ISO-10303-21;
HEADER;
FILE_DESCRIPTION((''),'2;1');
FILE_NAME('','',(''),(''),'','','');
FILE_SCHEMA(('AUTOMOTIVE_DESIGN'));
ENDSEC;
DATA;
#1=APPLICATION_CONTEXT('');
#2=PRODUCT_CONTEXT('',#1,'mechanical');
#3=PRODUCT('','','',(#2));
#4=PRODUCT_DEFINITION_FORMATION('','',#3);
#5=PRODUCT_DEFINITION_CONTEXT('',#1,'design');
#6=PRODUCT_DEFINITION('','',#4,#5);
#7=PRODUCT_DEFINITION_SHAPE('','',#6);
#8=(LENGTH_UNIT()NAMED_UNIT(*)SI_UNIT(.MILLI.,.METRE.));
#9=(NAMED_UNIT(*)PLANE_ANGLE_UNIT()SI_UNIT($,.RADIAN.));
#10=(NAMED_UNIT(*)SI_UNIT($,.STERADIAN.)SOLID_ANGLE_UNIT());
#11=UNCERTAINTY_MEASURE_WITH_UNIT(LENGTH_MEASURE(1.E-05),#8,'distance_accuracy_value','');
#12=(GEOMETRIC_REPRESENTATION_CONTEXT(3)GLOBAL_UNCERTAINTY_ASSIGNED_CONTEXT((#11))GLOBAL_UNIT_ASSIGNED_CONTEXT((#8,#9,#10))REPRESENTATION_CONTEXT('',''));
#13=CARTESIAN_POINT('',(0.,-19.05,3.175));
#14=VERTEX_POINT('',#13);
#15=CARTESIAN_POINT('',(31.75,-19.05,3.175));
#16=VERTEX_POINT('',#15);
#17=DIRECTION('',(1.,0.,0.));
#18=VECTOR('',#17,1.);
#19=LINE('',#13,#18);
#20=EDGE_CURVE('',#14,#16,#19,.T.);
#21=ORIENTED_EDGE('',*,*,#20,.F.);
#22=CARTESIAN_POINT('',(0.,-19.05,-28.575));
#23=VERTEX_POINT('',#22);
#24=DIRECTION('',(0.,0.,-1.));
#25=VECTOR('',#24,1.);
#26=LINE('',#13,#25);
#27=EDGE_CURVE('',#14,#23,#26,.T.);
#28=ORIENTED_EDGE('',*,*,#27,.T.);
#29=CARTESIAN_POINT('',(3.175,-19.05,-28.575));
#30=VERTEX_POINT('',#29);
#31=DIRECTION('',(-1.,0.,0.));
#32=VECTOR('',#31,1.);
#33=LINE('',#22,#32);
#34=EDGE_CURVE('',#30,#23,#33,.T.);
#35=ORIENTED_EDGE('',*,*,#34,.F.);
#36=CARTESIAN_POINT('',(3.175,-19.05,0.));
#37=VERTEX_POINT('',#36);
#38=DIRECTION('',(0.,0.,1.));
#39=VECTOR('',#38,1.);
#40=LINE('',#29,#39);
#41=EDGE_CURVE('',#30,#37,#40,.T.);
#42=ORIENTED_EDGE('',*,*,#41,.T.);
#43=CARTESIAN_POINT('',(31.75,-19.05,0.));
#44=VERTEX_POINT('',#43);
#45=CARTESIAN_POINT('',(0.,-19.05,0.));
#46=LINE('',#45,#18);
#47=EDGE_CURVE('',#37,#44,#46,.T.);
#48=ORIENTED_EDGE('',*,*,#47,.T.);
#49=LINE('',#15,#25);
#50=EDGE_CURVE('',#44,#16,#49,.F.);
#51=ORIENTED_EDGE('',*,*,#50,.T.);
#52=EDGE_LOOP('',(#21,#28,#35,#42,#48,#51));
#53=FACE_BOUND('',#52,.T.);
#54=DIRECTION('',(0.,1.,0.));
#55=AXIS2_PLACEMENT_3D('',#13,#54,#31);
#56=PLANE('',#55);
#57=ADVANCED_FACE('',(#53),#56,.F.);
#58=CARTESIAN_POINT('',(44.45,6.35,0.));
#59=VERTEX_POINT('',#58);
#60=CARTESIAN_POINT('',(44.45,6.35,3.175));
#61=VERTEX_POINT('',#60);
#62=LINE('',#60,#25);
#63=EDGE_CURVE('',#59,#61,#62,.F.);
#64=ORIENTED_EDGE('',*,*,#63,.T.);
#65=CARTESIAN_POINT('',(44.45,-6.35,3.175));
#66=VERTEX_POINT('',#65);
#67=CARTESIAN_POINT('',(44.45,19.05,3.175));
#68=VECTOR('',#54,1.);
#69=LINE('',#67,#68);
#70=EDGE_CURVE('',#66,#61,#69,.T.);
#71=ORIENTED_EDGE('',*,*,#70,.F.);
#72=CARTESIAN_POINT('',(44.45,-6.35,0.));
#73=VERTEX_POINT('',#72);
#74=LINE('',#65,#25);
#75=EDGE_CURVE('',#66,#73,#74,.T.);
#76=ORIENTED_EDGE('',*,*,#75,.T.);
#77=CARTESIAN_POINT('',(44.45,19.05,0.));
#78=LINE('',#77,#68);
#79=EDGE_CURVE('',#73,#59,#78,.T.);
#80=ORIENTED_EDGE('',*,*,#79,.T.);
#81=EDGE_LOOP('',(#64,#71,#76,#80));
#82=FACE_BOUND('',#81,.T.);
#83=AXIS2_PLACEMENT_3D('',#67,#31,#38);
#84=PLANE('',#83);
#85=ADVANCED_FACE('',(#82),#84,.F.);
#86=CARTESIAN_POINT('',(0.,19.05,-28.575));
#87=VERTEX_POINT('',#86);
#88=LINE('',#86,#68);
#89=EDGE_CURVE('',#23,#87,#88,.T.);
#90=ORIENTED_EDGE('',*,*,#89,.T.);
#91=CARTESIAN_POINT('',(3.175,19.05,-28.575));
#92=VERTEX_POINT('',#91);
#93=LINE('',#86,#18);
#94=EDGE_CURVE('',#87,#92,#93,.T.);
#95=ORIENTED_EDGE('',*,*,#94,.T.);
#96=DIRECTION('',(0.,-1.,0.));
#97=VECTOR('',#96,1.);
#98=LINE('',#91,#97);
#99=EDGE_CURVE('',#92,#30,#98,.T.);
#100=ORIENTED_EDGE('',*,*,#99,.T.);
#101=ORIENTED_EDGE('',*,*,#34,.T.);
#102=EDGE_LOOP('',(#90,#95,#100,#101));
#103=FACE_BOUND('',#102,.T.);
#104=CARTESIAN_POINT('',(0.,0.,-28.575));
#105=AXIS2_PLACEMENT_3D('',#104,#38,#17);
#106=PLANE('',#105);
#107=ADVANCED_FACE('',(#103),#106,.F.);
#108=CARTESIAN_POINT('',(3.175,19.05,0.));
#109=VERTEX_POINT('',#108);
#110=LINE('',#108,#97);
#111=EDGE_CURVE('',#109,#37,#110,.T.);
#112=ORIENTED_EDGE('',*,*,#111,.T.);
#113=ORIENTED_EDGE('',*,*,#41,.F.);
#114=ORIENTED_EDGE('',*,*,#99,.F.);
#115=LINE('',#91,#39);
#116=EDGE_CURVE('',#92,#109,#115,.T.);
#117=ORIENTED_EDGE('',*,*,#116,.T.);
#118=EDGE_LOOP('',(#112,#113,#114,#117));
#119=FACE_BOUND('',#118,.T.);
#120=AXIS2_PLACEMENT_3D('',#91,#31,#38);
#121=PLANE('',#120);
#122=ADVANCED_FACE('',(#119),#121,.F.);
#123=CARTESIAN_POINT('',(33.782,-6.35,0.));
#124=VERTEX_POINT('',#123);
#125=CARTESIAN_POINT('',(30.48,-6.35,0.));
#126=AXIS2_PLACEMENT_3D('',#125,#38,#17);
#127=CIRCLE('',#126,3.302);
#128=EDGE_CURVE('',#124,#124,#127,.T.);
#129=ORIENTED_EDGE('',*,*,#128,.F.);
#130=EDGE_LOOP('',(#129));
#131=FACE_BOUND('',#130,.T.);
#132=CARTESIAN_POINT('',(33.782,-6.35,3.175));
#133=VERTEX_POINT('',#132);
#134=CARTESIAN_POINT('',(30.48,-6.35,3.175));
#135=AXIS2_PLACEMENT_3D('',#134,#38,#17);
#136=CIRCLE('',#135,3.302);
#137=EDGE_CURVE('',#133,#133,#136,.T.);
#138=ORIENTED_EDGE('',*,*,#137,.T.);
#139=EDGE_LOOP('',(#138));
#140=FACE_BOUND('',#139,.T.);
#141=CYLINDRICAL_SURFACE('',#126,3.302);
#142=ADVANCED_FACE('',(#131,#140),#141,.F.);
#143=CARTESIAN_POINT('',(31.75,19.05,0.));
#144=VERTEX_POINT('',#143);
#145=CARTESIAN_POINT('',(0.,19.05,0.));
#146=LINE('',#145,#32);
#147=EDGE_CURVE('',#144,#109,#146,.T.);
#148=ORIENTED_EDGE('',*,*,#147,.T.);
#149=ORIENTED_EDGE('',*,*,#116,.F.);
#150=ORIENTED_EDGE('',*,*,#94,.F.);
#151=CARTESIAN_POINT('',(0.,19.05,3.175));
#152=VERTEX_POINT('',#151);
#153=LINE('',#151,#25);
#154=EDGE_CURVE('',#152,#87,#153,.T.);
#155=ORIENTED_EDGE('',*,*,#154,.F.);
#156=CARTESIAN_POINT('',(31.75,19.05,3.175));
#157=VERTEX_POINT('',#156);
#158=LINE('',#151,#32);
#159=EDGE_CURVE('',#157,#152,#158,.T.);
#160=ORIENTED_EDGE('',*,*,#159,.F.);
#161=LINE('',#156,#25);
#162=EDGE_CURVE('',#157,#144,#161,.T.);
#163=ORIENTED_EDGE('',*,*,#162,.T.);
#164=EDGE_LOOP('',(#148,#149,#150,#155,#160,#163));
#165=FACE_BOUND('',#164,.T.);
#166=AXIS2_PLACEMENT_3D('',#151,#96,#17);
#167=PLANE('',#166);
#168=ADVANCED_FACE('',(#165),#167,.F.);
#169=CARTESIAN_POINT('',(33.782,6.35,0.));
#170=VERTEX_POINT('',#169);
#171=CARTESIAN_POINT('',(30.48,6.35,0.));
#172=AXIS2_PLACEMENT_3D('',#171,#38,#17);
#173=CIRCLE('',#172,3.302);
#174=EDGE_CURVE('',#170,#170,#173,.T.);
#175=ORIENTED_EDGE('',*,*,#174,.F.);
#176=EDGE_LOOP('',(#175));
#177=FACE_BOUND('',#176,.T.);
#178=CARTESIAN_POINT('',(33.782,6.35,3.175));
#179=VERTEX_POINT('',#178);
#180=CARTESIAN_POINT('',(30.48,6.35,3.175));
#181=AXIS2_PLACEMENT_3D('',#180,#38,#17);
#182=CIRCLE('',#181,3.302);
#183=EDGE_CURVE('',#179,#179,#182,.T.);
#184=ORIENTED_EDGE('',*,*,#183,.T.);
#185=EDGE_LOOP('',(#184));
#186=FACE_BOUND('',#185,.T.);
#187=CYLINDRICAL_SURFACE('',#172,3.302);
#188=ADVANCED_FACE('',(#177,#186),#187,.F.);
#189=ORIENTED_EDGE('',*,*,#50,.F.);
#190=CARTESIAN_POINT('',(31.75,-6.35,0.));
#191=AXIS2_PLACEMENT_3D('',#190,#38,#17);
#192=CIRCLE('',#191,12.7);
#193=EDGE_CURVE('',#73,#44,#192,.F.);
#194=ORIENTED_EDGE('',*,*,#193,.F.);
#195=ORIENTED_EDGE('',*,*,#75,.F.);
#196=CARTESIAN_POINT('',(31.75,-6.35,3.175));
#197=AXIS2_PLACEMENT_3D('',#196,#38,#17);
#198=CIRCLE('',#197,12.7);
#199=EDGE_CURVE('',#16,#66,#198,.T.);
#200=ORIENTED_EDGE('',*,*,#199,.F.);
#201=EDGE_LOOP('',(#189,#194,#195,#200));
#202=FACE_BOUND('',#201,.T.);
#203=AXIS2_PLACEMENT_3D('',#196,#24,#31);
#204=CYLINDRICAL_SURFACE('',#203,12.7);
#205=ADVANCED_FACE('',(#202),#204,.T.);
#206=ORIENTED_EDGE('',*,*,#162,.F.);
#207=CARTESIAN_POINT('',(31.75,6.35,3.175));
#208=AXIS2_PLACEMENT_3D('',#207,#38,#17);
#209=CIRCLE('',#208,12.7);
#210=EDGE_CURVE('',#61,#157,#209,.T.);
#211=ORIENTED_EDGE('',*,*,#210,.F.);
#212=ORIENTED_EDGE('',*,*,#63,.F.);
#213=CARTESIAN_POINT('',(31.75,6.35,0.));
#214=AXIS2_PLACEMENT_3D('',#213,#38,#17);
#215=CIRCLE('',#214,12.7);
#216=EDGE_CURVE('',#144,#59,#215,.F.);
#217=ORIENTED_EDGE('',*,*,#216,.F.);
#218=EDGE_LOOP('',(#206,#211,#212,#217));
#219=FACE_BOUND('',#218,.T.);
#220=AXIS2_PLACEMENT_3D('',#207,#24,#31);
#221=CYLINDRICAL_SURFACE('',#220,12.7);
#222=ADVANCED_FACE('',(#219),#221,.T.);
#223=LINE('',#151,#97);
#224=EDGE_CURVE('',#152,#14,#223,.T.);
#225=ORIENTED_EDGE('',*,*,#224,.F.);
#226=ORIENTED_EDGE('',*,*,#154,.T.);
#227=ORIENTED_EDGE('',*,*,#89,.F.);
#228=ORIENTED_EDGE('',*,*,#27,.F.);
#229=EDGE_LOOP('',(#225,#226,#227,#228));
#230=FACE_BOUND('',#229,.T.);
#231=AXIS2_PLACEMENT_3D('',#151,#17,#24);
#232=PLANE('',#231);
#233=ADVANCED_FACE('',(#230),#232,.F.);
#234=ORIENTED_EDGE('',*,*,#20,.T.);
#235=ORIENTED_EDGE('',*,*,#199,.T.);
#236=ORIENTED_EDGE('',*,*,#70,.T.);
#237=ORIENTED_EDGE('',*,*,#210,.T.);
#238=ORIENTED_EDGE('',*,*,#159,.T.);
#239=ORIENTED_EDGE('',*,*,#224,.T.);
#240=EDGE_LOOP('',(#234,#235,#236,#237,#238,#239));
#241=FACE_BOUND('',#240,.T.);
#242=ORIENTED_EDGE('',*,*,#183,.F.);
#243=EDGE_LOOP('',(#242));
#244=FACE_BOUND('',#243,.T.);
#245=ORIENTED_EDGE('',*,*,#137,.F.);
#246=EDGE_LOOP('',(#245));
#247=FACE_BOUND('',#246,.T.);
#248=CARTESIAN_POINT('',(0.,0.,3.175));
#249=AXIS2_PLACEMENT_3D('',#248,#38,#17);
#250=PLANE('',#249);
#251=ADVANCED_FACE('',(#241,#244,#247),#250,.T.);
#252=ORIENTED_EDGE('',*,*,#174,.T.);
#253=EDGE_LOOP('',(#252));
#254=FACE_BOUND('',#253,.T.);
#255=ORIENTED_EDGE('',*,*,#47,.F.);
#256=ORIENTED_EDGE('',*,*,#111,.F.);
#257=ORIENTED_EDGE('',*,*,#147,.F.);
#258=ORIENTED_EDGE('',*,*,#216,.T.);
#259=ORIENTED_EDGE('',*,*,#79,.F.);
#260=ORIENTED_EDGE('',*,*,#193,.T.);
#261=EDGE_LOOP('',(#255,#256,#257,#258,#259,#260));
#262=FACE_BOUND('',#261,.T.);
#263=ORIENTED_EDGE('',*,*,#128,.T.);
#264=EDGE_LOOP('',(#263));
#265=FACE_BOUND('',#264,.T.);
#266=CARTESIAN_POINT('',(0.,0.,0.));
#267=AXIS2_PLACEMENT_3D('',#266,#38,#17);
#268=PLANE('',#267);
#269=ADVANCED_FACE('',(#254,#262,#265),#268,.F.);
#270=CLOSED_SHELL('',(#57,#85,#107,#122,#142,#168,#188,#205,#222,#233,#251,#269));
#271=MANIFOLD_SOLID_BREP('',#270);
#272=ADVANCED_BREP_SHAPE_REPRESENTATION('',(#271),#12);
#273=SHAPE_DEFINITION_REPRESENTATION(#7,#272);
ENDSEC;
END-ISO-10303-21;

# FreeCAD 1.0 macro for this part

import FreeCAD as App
import Part
import Sketcher
Q = App.Units.Quantity


def edges_at(feature, points):
    """Names of the edges that pass closest to the given points."""
    edges = feature.Shape.Edges
    near = lambda p: min(range(len(edges)), key=lambda i: edges[i].distToShape(Part.Vertex(*p))[0])
    return sorted({f"Edge{near(p) + 1}" for p in points})


def add_polygon(sketch, points):
    """Adds a closed chain of lines whose ends are joined by coincident constraints."""
    first, n = sketch.GeometryCount, len(points)
    for a, b in zip(points, points[1:] + points[:1]):
        sketch.addGeometry(Part.LineSegment(App.Vector(*a, 0), App.Vector(*b, 0)), False)
    for i in range(n):
        sketch.addConstraint(Sketcher.Constraint("Coincident", first + i, 2, first + (i + 1) % n, 1))

doc = App.newDocument("Part")
params = doc.addObject("Spreadsheet::Sheet", "Params")
for row, (alias, value) in enumerate([
    ("sketch1_height", "1.5 in"),
    ("sketch1_width", "1.75 in"),
    ("pad1_length", "0.125 in"),
    ("sketch2_diameter", "0.26 in"),
    ("sketch3_height", "1.5 in"),
    ("sketch3_width", "0.125 in"),
    ("pad2_length", "1.125 in"),
    ("fillet_radius", "0.5 in"),
], start=1):
    params.set(f"A{row}", alias)
    params.set(f"B{row}", "=" + value)
    params.setAlias(f"B{row}", alias)

body = doc.addObject("PartDesign::Body", "Body")

# Sketch on XY plane
sketch1 = doc.addObject("Sketcher::SketchObject", "Sketch")
body.addObject(sketch1)
sketch1.AttachmentSupport = (doc.XY_Plane, [""])
sketch1.MapMode = "FlatFace"
add_polygon(sketch1, [(0, 19.05), (0, -19.05), (44.45, -19.05), (44.45, 19.05)])  # lines 0-3
sketch1.addConstraint([
    Sketcher.Constraint("Vertical", 0),
    Sketcher.Constraint("Horizontal", 1),
    Sketcher.Constraint("Vertical", 2),
    Sketcher.Constraint("Horizontal", 3),
    Sketcher.Constraint("Symmetric", 0, 2, 3, 2, -1, 1),
    Sketcher.Constraint("DistanceY", 0, 2, 0, 1, Q("1.5 in")),
    Sketcher.Constraint("DistanceX", 1, 1, 1, 2, Q("1.75 in")),
])
sketch1.setExpression("Constraints[9]", "Params.sketch1_height")
sketch1.setExpression("Constraints[10]", "Params.sketch1_width")
pad1 = doc.addObject("PartDesign::Pad", "Pad")
body.addObject(pad1)
pad1.Profile = sketch1
pad1.setExpression("Length", "Params.pad1_length")

# Sketch on XY plane
sketch2 = doc.addObject("Sketcher::SketchObject", "Sketch001")
body.addObject(sketch2)
sketch2.AttachmentSupport = (doc.XY_Plane, [""])
sketch2.MapMode = "FlatFace"
sketch2.AttachmentOffset = App.Placement(App.Vector(0, 0, 0.125 * 25.4), App.Rotation())
sketch2.addGeometry([
    Part.Circle(App.Vector(30.48, 6.35, 0), App.Vector(0, 0, 1), 3.302),
    Part.Circle(App.Vector(30.48, -6.35, 0), App.Vector(0, 0, 1), 3.302),
], False)
sketch2.addConstraint([
    Sketcher.Constraint("Equal", 0, 1),
    Sketcher.Constraint("Symmetric", 0, 3, 1, 3, -1),
    Sketcher.Constraint("Diameter", 0, Q("0.26 in")),
    Sketcher.Constraint("DistanceX", -1, 1, 0, 3, Q("1.2 in")),
    Sketcher.Constraint("DistanceY", 1, 3, 0, 3, Q("0.5 in")),
])
sketch2.setExpression("Constraints[2]", "Params.sketch2_diameter")
pocket1 = doc.addObject("PartDesign::Pocket", "Pocket")
body.addObject(pocket1)
pocket1.Profile = sketch2
pocket1.Type = "ThroughAll"
pocket1.Midplane = True

# Sketch on XY plane
sketch3 = doc.addObject("Sketcher::SketchObject", "Sketch002")
body.addObject(sketch3)
sketch3.AttachmentSupport = (doc.XY_Plane, [""])
sketch3.MapMode = "FlatFace"
add_polygon(sketch3, [(3.175, 19.05), (3.175, -19.05), (0, -19.05), (0, 19.05)])  # lines 0-3
sketch3.addConstraint([
    Sketcher.Constraint("Vertical", 0),
    Sketcher.Constraint("Horizontal", 1),
    Sketcher.Constraint("Vertical", 2),
    Sketcher.Constraint("Horizontal", 3),
    Sketcher.Constraint("Symmetric", 1, 2, 2, 2, -1, 1),
    Sketcher.Constraint("DistanceY", 0, 2, 0, 1, Q("1.5 in")),
    Sketcher.Constraint("DistanceX", 1, 2, 1, 1, Q("0.125 in")),
])
sketch3.setExpression("Constraints[9]", "Params.sketch3_height")
sketch3.setExpression("Constraints[10]", "Params.sketch3_width")
pad2 = doc.addObject("PartDesign::Pad", "Pad001")
body.addObject(pad2)
pad2.Profile = sketch3
pad2.setExpression("Length", "Params.pad2_length")
pad2.Reversed = True
doc.recompute()

fillet = doc.addObject("PartDesign::Fillet", "Fillet")
body.addObject(fillet)
fillet.Base = (pad2, edges_at(pad2, [(44.45, 19.05, 1.587), (44.45, -19.05, 1.587)]))
fillet.setExpression("Radius", "Params.fillet_radius")

doc.recompute()
